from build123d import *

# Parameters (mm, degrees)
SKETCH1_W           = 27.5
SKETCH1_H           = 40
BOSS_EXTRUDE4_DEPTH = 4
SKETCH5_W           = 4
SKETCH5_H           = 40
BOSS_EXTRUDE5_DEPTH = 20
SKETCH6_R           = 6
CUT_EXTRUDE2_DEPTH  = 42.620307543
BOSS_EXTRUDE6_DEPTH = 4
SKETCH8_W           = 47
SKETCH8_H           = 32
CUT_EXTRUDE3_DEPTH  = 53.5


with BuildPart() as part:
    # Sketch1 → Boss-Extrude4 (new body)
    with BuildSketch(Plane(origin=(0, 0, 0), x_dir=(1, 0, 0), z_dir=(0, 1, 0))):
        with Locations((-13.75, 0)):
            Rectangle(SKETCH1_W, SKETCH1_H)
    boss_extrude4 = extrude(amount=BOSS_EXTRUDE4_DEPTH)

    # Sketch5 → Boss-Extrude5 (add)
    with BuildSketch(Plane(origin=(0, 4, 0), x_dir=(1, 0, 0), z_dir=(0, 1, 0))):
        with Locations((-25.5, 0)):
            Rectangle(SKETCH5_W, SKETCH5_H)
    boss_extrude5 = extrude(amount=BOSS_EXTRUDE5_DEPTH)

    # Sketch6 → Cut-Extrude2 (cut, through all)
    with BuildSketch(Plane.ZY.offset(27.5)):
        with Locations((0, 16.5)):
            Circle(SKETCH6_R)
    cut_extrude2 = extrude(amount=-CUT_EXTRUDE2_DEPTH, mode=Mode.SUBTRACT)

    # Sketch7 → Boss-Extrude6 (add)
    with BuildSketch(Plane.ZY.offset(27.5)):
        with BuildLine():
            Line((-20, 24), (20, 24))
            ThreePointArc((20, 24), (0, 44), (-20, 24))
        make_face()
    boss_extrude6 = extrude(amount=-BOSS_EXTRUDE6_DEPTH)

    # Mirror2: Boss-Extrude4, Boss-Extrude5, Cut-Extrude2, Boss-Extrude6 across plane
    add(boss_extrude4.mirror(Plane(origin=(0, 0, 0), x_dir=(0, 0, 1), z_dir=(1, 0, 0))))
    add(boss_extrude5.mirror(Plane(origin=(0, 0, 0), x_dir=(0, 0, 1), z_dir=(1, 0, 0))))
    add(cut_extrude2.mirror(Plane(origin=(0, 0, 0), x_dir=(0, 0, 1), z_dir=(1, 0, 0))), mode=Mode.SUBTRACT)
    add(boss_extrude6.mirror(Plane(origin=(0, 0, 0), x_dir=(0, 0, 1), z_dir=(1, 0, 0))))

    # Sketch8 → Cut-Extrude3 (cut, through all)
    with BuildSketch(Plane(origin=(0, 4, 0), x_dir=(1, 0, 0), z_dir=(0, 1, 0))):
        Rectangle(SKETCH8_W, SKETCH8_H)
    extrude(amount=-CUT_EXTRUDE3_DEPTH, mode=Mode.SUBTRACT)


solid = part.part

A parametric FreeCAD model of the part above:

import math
import FreeCAD as App
import Part
import Sketcher
from FreeCAD import Vector

doc = App.newDocument("Part")
body = doc.addObject("PartDesign::Body", "Body")

sketch1 = body.newObject("Sketcher::SketchObject", "Sketch")
sketch1.AttachmentSupport = (doc.getObject("XZ_Plane"), [""])
sketch1.MapMode = "FlatFace"
sketch1.addGeometry([
    Part.LineSegment(Vector(-27.5, -20, 0), Vector(-27.5, 20, 0)),
    Part.LineSegment(Vector(-27.5, 20, 0), Vector(0, 20, 0)),
    Part.LineSegment(Vector(0, 20, 0), Vector(0, -20, 0)),
    Part.LineSegment(Vector(0, -20, 0), Vector(-27.5, -20, 0)),
], False)
sketch1.addConstraint([
    Sketcher.Constraint("Coincident", 0, 2, 1, 1),
    Sketcher.Constraint("Coincident", 1, 2, 2, 1),
    Sketcher.Constraint("Coincident", 2, 2, 3, 1),
    Sketcher.Constraint("Coincident", 3, 2, 0, 1),
    Sketcher.Constraint("Vertical", 0),
    Sketcher.Constraint("Horizontal", 1),
    Sketcher.Constraint("Vertical", 2),
    Sketcher.Constraint("Horizontal", 3),
    Sketcher.Constraint("Symmetric", 1, 2, 2, 2, -1, 1),
    Sketcher.Constraint("DistanceY", 0, 1, 0, 2, 40.0),
    Sketcher.Constraint("DistanceX", 1, 1, 1, 2, 27.5),
])
pad1 = body.newObject("PartDesign::Pad", "Pad")
pad1.Profile = sketch1
pad1.Length = 4
pad1.Reversed = True

sketch2 = body.newObject("Sketcher::SketchObject", "Sketch001")
sketch2.AttachmentSupport = (doc.getObject("XZ_Plane"), [""])
sketch2.MapMode = "FlatFace"
sketch2.AttachmentOffset = App.Placement(Vector(0, 0, -4), App.Rotation())
sketch2.addGeometry([
    Part.LineSegment(Vector(-27.5, -20, 0), Vector(-27.5, 20, 0)),
    Part.LineSegment(Vector(-27.5, 20, 0), Vector(-23.5, 20, 0)),
    Part.LineSegment(Vector(-23.5, 20, 0), Vector(-23.5, -20, 0)),
    Part.LineSegment(Vector(-23.5, -20, 0), Vector(-27.5, -20, 0)),
], False)
sketch2.addConstraint([
    Sketcher.Constraint("Coincident", 0, 2, 1, 1),
    Sketcher.Constraint("Coincident", 1, 2, 2, 1),
    Sketcher.Constraint("Coincident", 2, 2, 3, 1),
    Sketcher.Constraint("Coincident", 3, 2, 0, 1),
    Sketcher.Constraint("Vertical", 0),
    Sketcher.Constraint("Horizontal", 1),
    Sketcher.Constraint("Vertical", 2),
    Sketcher.Constraint("Horizontal", 3),
    Sketcher.Constraint("DistanceX", 1, 1, 1, 2, 4.0),
    Sketcher.Constraint("DistanceY", 0, 1, 0, 2, 40.0),
    Sketcher.Constraint("DistanceY", -1, 1, 0, 2, 20.0),
    Sketcher.Constraint("DistanceX", 0, 2, -1, 1, 27.5),
])
pad2 = body.newObject("PartDesign::Pad", "Pad001")
pad2.Profile = sketch2
pad2.Length = 20
pad2.Reversed = True

sketch3 = body.newObject("Sketcher::SketchObject", "Sketch002")
sketch3.AttachmentSupport = (doc.getObject("YZ_Plane"), [""])
sketch3.MapMode = "FlatFace"
sketch3.AttachmentOffset = App.Placement(Vector(0, 0, -27.5), App.Rotation())
sketch3.addGeometry(Part.Circle(Vector(16.5, 0, 0), Vector(0, 0, 1), 6), False)
sketch3.addConstraint([
    Sketcher.Constraint("PointOnObject", 0, 3, -1),
    Sketcher.Constraint("Diameter", 0, 12.0),
    Sketcher.Constraint("DistanceX", -1, 1, 0, 3, 16.5),
])
pocket1 = body.newObject("PartDesign::Pocket", "Pocket")
pocket1.Profile = sketch3
pocket1.Type = "ThroughAll"
pocket1.Reversed = True

sketch4 = body.newObject("Sketcher::SketchObject", "Sketch003")
sketch4.AttachmentSupport = (doc.getObject("YZ_Plane"), [""])
sketch4.MapMode = "FlatFace"
sketch4.AttachmentOffset = App.Placement(Vector(0, 0, -27.5), App.Rotation())
sketch4.addGeometry([
    Part.LineSegment(Vector(24, -20, 0), Vector(24, 20, 0)),
    Part.ArcOfCircle(Part.Circle(Vector(24, 0, 0), Vector(0, 0, 1), 20), math.radians(-90), math.radians(90)),
], False)
sketch4.addConstraint([
    Sketcher.Constraint("Coincident", 0, 1, 1, 1),
    Sketcher.Constraint("Coincident", 1, 2, 0, 2),
    Sketcher.Constraint("Vertical", 0),
    Sketcher.Constraint("PointOnObject", 1, 3, -1),
    Sketcher.Constraint("Vertical", 1, 3, 0, 1),
    Sketcher.Constraint("Radius", 1, 20.0),
    Sketcher.Constraint("DistanceX", -1, 1, 1, 3, 24.0),
])
pad3 = body.newObject("PartDesign::Pad", "Pad002")
pad3.Profile = sketch4
pad3.Length = 4
doc.recompute()

mirrored = body.newObject("PartDesign::Mirrored", "Mirrored")
mirrored.Originals = [pad1, pad2, pocket1, pad3]
mirrored.MirrorPlane = (doc.getObject("YZ_Plane"), [""])
body.Tip = mirrored

sketch5 = body.newObject("Sketcher::SketchObject", "Sketch004")
sketch5.AttachmentSupport = (doc.getObject("XZ_Plane"), [""])
sketch5.MapMode = "FlatFace"
sketch5.AttachmentOffset = App.Placement(Vector(0, 0, -4), App.Rotation())
sketch5.addGeometry([
    Part.LineSegment(Vector(-23.5, -16, 0), Vector(-23.5, 16, 0)),
    Part.LineSegment(Vector(-23.5, 16, 0), Vector(23.5, 16, 0)),
    Part.LineSegment(Vector(23.5, 16, 0), Vector(23.5, -16, 0)),
    Part.LineSegment(Vector(23.5, -16, 0), Vector(-23.5, -16, 0)),
], False)
sketch5.addConstraint([
    Sketcher.Constraint("Coincident", 0, 2, 1, 1),
    Sketcher.Constraint("Coincident", 1, 2, 2, 1),
    Sketcher.Constraint("Coincident", 2, 2, 3, 1),
    Sketcher.Constraint("Coincident", 3, 2, 0, 1),
    Sketcher.Constraint("Vertical", 0),
    Sketcher.Constraint("Horizontal", 1),
    Sketcher.Constraint("Vertical", 2),
    Sketcher.Constraint("Horizontal", 3),
    Sketcher.Constraint("Symmetric", 0, 2, 2, 2, -1, 1),
    Sketcher.Constraint("DistanceX", 1, 1, 1, 2, 47.0),
    Sketcher.Constraint("DistanceY", 0, 1, 0, 2, 32.0),
])
pocket2 = body.newObject("PartDesign::Pocket", "Pocket001")
pocket2.Profile = sketch5
pocket2.Type = "ThroughAll"
pocket2.Reversed = True

doc.recompute()
